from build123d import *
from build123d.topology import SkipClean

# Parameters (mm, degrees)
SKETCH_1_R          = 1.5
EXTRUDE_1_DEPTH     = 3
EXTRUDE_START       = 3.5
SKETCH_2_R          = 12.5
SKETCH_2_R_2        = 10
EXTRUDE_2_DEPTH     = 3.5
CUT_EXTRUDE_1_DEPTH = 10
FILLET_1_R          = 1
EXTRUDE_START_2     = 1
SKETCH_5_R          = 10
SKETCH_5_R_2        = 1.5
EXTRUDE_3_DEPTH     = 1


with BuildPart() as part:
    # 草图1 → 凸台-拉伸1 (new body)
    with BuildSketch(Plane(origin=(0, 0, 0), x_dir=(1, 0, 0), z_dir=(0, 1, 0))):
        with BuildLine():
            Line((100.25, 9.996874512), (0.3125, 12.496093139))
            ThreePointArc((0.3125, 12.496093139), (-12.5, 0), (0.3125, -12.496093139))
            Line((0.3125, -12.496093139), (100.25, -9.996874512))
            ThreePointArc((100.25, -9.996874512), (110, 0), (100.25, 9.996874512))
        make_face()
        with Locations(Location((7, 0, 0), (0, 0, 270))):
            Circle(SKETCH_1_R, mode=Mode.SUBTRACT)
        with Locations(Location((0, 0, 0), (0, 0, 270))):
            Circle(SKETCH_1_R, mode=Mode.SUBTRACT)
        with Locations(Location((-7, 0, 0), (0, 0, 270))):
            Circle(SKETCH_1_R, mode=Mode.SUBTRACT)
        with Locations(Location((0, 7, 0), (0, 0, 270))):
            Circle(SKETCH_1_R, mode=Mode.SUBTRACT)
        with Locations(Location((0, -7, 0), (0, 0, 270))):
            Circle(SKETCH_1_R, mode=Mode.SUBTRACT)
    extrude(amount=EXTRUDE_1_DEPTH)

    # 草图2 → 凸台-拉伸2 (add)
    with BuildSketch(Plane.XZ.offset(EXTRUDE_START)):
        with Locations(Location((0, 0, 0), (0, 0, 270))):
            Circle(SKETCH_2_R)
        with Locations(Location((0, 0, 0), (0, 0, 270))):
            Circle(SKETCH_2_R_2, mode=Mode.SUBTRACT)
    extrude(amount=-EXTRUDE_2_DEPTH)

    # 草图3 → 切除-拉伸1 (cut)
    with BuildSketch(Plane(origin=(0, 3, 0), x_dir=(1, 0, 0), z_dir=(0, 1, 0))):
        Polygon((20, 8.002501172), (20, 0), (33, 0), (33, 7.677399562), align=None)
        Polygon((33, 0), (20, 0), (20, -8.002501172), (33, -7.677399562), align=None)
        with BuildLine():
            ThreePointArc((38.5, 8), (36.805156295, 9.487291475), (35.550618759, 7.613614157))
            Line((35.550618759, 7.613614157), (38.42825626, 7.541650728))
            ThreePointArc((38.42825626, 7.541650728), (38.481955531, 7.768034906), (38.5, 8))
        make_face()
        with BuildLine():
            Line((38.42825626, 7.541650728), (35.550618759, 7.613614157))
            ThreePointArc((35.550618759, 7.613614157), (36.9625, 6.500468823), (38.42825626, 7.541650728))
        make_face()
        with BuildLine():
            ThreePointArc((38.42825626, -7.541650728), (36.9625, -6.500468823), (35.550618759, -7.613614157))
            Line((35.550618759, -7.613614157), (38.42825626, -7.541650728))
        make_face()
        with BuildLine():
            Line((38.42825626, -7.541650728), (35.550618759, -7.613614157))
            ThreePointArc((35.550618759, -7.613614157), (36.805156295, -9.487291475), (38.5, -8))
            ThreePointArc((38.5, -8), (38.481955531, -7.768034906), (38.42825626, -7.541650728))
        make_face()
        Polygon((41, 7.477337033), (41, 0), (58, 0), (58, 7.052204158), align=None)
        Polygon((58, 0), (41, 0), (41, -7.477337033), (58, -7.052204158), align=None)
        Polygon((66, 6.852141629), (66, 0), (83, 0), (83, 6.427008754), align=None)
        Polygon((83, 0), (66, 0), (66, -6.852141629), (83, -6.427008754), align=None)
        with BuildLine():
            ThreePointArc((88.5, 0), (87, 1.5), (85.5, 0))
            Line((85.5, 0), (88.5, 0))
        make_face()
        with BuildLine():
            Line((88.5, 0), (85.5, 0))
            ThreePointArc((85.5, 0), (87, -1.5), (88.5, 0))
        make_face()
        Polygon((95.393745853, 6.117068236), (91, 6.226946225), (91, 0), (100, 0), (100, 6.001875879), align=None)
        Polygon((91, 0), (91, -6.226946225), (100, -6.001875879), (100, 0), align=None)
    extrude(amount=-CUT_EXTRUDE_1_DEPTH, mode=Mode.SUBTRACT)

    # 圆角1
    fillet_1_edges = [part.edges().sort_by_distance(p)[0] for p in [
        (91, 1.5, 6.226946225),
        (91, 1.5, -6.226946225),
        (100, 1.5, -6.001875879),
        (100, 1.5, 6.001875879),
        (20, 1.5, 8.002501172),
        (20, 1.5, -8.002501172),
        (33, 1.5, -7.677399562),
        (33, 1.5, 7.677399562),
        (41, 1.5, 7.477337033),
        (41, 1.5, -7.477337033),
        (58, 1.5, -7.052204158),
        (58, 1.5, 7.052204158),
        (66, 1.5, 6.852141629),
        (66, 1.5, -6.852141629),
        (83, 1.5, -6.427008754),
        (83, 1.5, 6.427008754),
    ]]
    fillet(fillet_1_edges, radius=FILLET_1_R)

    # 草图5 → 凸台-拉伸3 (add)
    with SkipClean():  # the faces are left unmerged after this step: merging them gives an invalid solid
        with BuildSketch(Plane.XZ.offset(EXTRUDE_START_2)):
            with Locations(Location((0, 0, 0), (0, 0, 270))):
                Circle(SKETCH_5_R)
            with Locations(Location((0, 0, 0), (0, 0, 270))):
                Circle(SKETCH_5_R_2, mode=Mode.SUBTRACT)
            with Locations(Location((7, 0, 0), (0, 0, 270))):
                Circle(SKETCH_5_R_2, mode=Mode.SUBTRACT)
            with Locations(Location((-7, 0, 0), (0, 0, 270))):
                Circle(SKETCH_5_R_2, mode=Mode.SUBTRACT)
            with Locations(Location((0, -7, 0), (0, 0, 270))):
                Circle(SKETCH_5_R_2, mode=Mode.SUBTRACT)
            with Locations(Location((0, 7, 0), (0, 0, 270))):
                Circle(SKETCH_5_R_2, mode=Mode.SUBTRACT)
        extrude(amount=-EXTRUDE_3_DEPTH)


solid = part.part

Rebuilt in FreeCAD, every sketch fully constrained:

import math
import FreeCAD as App
import Part
import Sketcher

V = App.Vector
Q = App.Units.Quantity


def edges_at(feature, points):
    """Names of the edges that pass closest to the given points."""
    edges = feature.Shape.Edges
    near = lambda p: min(range(len(edges)), key=lambda i: edges[i].distToShape(Part.Vertex(*p))[0])
    return sorted({f"Edge{near(p) + 1}" for p in points})

doc = App.newDocument("Part")
body = doc.addObject("PartDesign::Body", "Body")

sketch1 = body.newObject("Sketcher::SketchObject", "Sketch")
sketch1.AttachmentSupport = (doc.getObject("XZ_Plane"), [""])
sketch1.MapMode = "FlatFace"
sketch1.addGeometry([
    Part.LineSegment(V(100.25, -9.996875, 0), V(0.3125, -12.496093, 0)),
    Part.ArcOfCircle(Part.Circle(V(0, 0, 0), V(0, 0, 1), 12.5), math.radians(88.567456), math.radians(271.432544)),
    Part.LineSegment(V(0.3125, 12.496093, 0), V(100.25, 9.996875, 0)),
    Part.ArcOfCircle(Part.Circle(V(100, 0, 0), V(0, 0, 1), 10), math.radians(-88.567456), math.radians(88.567456)),
    Part.Circle(V(0, 7, 0), V(0, 0, 1), 1.5),
    Part.Circle(V(-7, 0, 0), V(0, 0, 1), 1.5),
    Part.Circle(V(0, 0, 0), V(0, 0, 1), 1.5),
    Part.Circle(V(7, 0, 0), V(0, 0, 1), 1.5),
    Part.Circle(V(0, -7, 0), V(0, 0, 1), 1.5),
], False)
sketch1.addConstraint([
    Sketcher.Constraint("Tangent", 0, 2, 1, 2),
    Sketcher.Constraint("Tangent", 1, 1, 2, 1),
    Sketcher.Constraint("Tangent", 2, 2, 3, 2),
    Sketcher.Constraint("Tangent", 3, 1, 0, 1),
    Sketcher.Constraint("Coincident", 1, 3, -1, 1),
    Sketcher.Constraint("Coincident", 6, 3, -1, 1),
    Sketcher.Constraint("Equal", 4, 5),
    Sketcher.Constraint("Equal", 5, 6),
    Sketcher.Constraint("Equal", 6, 7),
    Sketcher.Constraint("Equal", 7, 8),
    Sketcher.Constraint("Symmetric", 5, 3, 7, 3, -1, 1),
    Sketcher.Constraint("Symmetric", 4, 3, 8, 3, -1, 1),
    Sketcher.Constraint("PointOnObject", 3, 3, -1),
    Sketcher.Constraint("PointOnObject", 4, 3, -2),
    Sketcher.Constraint("PointOnObject", 5, 3, -1),
    Sketcher.Constraint("Diameter", 4, Q("3 mm")),
    Sketcher.Constraint("Radius", 3, Q("10 mm")),
    Sketcher.Constraint("Radius", 1, Q("12.5 mm")),
    Sketcher.Constraint("DistanceX", -1, 1, 3, 3, Q("100 mm")),
    Sketcher.Constraint("DistanceY", -1, 1, 4, 3, Q("7 mm")),
    Sketcher.Constraint("DistanceX", 5, 3, -1, 1, Q("7 mm")),
])
pad1 = body.newObject("PartDesign::Pad", "Pad")
pad1.Profile = sketch1
pad1.Length = 3
pad1.Reversed = True

sketch2 = body.newObject("Sketcher::SketchObject", "Sketch001")
sketch2.AttachmentSupport = (doc.getObject("XZ_Plane"), [""])
sketch2.MapMode = "FlatFace"
sketch2.AttachmentOffset = App.Placement(V(0, 0, 3.5), App.Rotation())
sketch2.addGeometry([
    Part.Circle(V(0, 0, 0), V(0, 0, 1), 12.5),
    Part.Circle(V(0, 0, 0), V(0, 0, 1), 10),
], False)
sketch2.addConstraint([
    Sketcher.Constraint("Coincident", 0, 3, -1, 1),
    Sketcher.Constraint("Coincident", 1, 3, -1, 1),
    Sketcher.Constraint("Diameter", 0, Q("25 mm")),
    Sketcher.Constraint("Diameter", 1, Q("20 mm")),
])
pad2 = body.newObject("PartDesign::Pad", "Pad001")
pad2.Profile = sketch2
pad2.Length = 3.5
pad2.Reversed = True

sketch3 = body.newObject("Sketcher::SketchObject", "Sketch002")
sketch3.AttachmentSupport = (doc.getObject("XZ_Plane"), [""])
sketch3.MapMode = "FlatFace"
sketch3.AttachmentOffset = App.Placement(V(0, 0, -3), App.Rotation())
sketch3.addGeometry([
    Part.LineSegment(V(20, -8.002501, 0), V(20, 8.002501, 0)),
    Part.LineSegment(V(20, 8.002501, 0), V(33, 7.6774, 0)),
    Part.LineSegment(V(33, 7.6774, 0), V(33, -7.6774, 0)),
    Part.LineSegment(V(33, -7.6774, 0), V(20, -8.002501, 0)),
    Part.ArcOfCircle(Part.Circle(V(37, -8, 0), V(0, 0, 1), 1.5), math.radians(165.072857), math.radians(360)),
    Part.ArcOfCircle(Part.Circle(V(37, -8, 0), V(0, 0, 1), 1.5), math.radians(17.79223), math.radians(165.072857)),
    Part.ArcOfCircle(Part.Circle(V(37, -8, 0), V(0, 0, 1), 1.5), math.radians(0), math.radians(17.79223)),
    Part.ArcOfCircle(Part.Circle(V(37, 8, 0), V(0, 0, 1), 1.5), math.radians(-165.072857), math.radians(-17.79223)),
    Part.ArcOfCircle(Part.Circle(V(37, 8, 0), V(0, 0, 1), 1.5), math.radians(0), math.radians(194.927143)),
    Part.ArcOfCircle(Part.Circle(V(37, 8, 0), V(0, 0, 1), 1.5), math.radians(-17.79223), math.radians(0)),
    Part.LineSegment(V(41, -7.477337, 0), V(41, 7.477337, 0)),
    Part.LineSegment(V(41, 7.477337, 0), V(58, 7.052204, 0)),
    Part.LineSegment(V(58, 7.052204, 0), V(58, -7.052204, 0)),
    Part.LineSegment(V(58, -7.052204, 0), V(41, -7.477337, 0)),
    Part.LineSegment(V(66, -6.852142, 0), V(66, 6.852142, 0)),
    Part.LineSegment(V(66, 6.852142, 0), V(83, 6.427009, 0)),
    Part.LineSegment(V(83, 6.427009, 0), V(83, -6.427009, 0)),
    Part.LineSegment(V(83, -6.427009, 0), V(66, -6.852142, 0)),
    Part.Circle(V(87, 0, 0), V(0, 0, 1), 1.5),
    Part.LineSegment(V(95.393746, -6.117068, 0), V(91, -6.226946, 0)),
    Part.LineSegment(V(91, -6.226946, 0), V(91, 6.226946, 0)),
    Part.LineSegment(V(91, 6.226946, 0), V(100, 6.001876, 0)),
    Part.LineSegment(V(100, 6.001876, 0), V(100, -6.001876, 0)),
    Part.LineSegment(V(100, -6.001876, 0), V(95.393746, -6.117068, 0)),
], False)
sketch3.addConstraint([
    Sketcher.Constraint("Coincident", 0, 2, 1, 1),
    Sketcher.Constraint("Coincident", 1, 2, 2, 1),
    Sketcher.Constraint("Coincident", 2, 2, 3, 1),
    Sketcher.Constraint("Coincident", 3, 2, 0, 1),
    Sketcher.Constraint("Tangent", 4, 1, 5, 2),
    Sketcher.Constraint("Tangent", 5, 1, 6, 2),
    Sketcher.Constraint("Tangent", 6, 1, 4, 2),
    Sketcher.Constraint("Tangent", 7, 1, 8, 2),
    Sketcher.Constraint("Tangent", 8, 1, 9, 2),
    Sketcher.Constraint("Tangent", 9, 1, 7, 2),
    Sketcher.Constraint("Coincident", 10, 2, 11, 1),
    Sketcher.Constraint("Coincident", 11, 2, 12, 1),
    Sketcher.Constraint("Coincident", 12, 2, 13, 1),
    Sketcher.Constraint("Coincident", 13, 2, 10, 1),
    Sketcher.Constraint("Coincident", 14, 2, 15, 1),
    Sketcher.Constraint("Coincident", 15, 2, 16, 1),
    Sketcher.Constraint("Coincident", 16, 2, 17, 1),
    Sketcher.Constraint("Coincident", 17, 2, 14, 1),
    Sketcher.Constraint("Coincident", 19, 2, 20, 1),
    Sketcher.Constraint("Coincident", 20, 2, 21, 1),
    Sketcher.Constraint("Coincident", 21, 2, 22, 1),
    Sketcher.Constraint("Coincident", 22, 2, 23, 1),
    Sketcher.Constraint("Coincident", 23, 2, 19, 1),
    Sketcher.Constraint("Vertical", 0),
    Sketcher.Constraint("Vertical", 2),
    Sketcher.Constraint("Vertical", 10),
    Sketcher.Constraint("Vertical", 12),
    Sketcher.Constraint("Vertical", 14),
    Sketcher.Constraint("Vertical", 16),
    Sketcher.Constraint("Vertical", 20),
    Sketcher.Constraint("Vertical", 22),
    Sketcher.Constraint("Equal", 6, 7),
    Sketcher.Constraint("Equal", 9, 18),
    Sketcher.Constraint("Symmetric", 4, 3, 7, 3, -1),
    Sketcher.Constraint("PointOnObject", 18, 3, -1),
    Sketcher.Constraint("Parallel", 1, 11),
    Sketcher.Constraint("Parallel", 3, 13),
    Sketcher.Constraint("Parallel", 11, 15),
    Sketcher.Constraint("Parallel", 13, 17),
    Sketcher.Constraint("Parallel", 17, 19),
    Sketcher.Constraint("Parallel", 15, 21),
    Sketcher.Constraint("Parallel", 19, 23),
    Sketcher.Constraint("Horizontal", 5, 3, 6, 1),
    Sketcher.Constraint("Horizontal", 9, 3, 8, 1),
    Sketcher.Constraint("Vertical", 4, 1, 7, 1),
    Sketcher.Constraint("Vertical", 5, 1, 9, 1),
    Sketcher.Constraint("Equal", 1, 3),
    Sketcher.Constraint("Equal", 13, 15),
    Sketcher.Constraint("Diameter", 18, Q("3 mm")),
    Sketcher.Constraint("DistanceX", -1, 1, 4, 3, Q("37 mm")),
    Sketcher.Constraint("DistanceY", 4, 3, -1, 1, Q("8 mm")),
    Sketcher.Constraint("DistanceX", -1, 1, 18, 3, Q("87 mm")),
    Sketcher.Constraint("DistanceX", -1, 1, 0, 2, Q("20 mm")),
    Sketcher.Constraint("DistanceX", -1, 1, 1, 2, Q("33 mm")),
    Sketcher.Constraint("DistanceX", -1, 1, 10, 2, Q("41 mm")),
    Sketcher.Constraint("DistanceX", -1, 1, 11, 2, Q("58 mm")),
    Sketcher.Constraint("DistanceX", -1, 1, 14, 2, Q("66 mm")),
    Sketcher.Constraint("DistanceX", -1, 1, 19, 2, Q("91 mm")),
    Sketcher.Constraint("DistanceX", -1, 1, 21, 2, Q("100 mm")),
    Sketcher.Constraint("DistanceY", 2, 2, 2, 1, Q("15.354799 mm")),
    Sketcher.Constraint("DistanceY", 12, 2, 12, 1, Q("14.104408 mm")),
    Sketcher.Constraint("DistanceY", 22, 2, 22, 1, Q("12.003752 mm")),
    Sketcher.Constraint("DistanceY", -1, 1, 0, 2, Q("8.002501 mm")),
    Sketcher.Constraint("DistanceY", -1, 1, 1, 2, Q("7.6774 mm")),
    Sketcher.Constraint("Distance", 19, Q("4.39512 mm")),
    Sketcher.Constraint("DistanceY", 14, 1, 14, 2, Q("13.704283 mm")),
    Sketcher.Constraint("DistanceX", -1, 1, 4, 1, Q("35.550619 mm")),
    Sketcher.Constraint("DistanceY", 5, 1, -1, 1, Q("7.541651 mm")),
    Sketcher.Constraint("DistanceY", -1, 1, 14, 2, Q("6.852142 mm")),
    Sketcher.Constraint("DistanceY", 23, 2, -1, 1, Q("6.117068 mm")),
    Sketcher.Constraint("DistanceY", 15, 2, 10, 2, Q("1.050328 mm")),
])
pocket1 = body.newObject("PartDesign::Pocket", "Pocket")
pocket1.Profile = sketch3
pocket1.Length = 10
pocket1.Reversed = True
doc.recompute()

fillet = body.newObject("PartDesign::Fillet", "Fillet")
fillet.Base = (pocket1, edges_at(pocket1, [
    (91, 1.5, 6.227),
    (91, 1.5, -6.227),
    (100, 1.5, -6.002),
    (100, 1.5, 6.002),
    (20, 1.5, 8.003),
    (20, 1.5, -8.003),
    (33, 1.5, -7.677),
    (33, 1.5, 7.677),
    (41, 1.5, 7.477),
    (41, 1.5, -7.477),
    (58, 1.5, -7.052),
    (58, 1.5, 7.052),
    (66, 1.5, 6.852),
    (66, 1.5, -6.852),
    (83, 1.5, -6.427),
    (83, 1.5, 6.427),
]))
fillet.Radius = 1

sketch4 = body.newObject("Sketcher::SketchObject", "Sketch003")
sketch4.AttachmentSupport = (doc.getObject("XZ_Plane"), [""])
sketch4.MapMode = "FlatFace"
sketch4.AttachmentOffset = App.Placement(V(0, 0, 1), App.Rotation())
sketch4.addGeometry([
    Part.Circle(V(0, 0, 0), V(0, 0, 1), 10),
    Part.Circle(V(0, 7, 0), V(0, 0, 1), 1.5),
    Part.Circle(V(-7, 0, 0), V(0, 0, 1), 1.5),
    Part.Circle(V(7, 0, 0), V(0, 0, 1), 1.5),
    Part.Circle(V(0, 0, 0), V(0, 0, 1), 1.5),
    Part.Circle(V(0, -7, 0), V(0, 0, 1), 1.5),
], False)
sketch4.addConstraint([
    Sketcher.Constraint("Coincident", 0, 3, -1, 1),
    Sketcher.Constraint("Coincident", 4, 3, -1, 1),
    Sketcher.Constraint("Equal", 1, 2),
    Sketcher.Constraint("Equal", 2, 3),
    Sketcher.Constraint("Equal", 3, 4),
    Sketcher.Constraint("Equal", 4, 5),
    Sketcher.Constraint("Symmetric", 2, 3, 3, 3, -1, 1),
    Sketcher.Constraint("Symmetric", 1, 3, 5, 3, -1, 1),
    Sketcher.Constraint("PointOnObject", 1, 3, -2),
    Sketcher.Constraint("PointOnObject", 2, 3, -1),
    Sketcher.Constraint("Diameter", 0, Q("20 mm")),
    Sketcher.Constraint("Diameter", 1, Q("3 mm")),
    Sketcher.Constraint("DistanceY", -1, 1, 1, 3, Q("7 mm")),
    Sketcher.Constraint("DistanceX", 2, 3, -1, 1, Q("7 mm")),
])
pad3 = body.newObject("PartDesign::Pad", "Pad002")
pad3.Profile = sketch4
pad3.Length = 1
pad3.Reversed = True

doc.recompute()
